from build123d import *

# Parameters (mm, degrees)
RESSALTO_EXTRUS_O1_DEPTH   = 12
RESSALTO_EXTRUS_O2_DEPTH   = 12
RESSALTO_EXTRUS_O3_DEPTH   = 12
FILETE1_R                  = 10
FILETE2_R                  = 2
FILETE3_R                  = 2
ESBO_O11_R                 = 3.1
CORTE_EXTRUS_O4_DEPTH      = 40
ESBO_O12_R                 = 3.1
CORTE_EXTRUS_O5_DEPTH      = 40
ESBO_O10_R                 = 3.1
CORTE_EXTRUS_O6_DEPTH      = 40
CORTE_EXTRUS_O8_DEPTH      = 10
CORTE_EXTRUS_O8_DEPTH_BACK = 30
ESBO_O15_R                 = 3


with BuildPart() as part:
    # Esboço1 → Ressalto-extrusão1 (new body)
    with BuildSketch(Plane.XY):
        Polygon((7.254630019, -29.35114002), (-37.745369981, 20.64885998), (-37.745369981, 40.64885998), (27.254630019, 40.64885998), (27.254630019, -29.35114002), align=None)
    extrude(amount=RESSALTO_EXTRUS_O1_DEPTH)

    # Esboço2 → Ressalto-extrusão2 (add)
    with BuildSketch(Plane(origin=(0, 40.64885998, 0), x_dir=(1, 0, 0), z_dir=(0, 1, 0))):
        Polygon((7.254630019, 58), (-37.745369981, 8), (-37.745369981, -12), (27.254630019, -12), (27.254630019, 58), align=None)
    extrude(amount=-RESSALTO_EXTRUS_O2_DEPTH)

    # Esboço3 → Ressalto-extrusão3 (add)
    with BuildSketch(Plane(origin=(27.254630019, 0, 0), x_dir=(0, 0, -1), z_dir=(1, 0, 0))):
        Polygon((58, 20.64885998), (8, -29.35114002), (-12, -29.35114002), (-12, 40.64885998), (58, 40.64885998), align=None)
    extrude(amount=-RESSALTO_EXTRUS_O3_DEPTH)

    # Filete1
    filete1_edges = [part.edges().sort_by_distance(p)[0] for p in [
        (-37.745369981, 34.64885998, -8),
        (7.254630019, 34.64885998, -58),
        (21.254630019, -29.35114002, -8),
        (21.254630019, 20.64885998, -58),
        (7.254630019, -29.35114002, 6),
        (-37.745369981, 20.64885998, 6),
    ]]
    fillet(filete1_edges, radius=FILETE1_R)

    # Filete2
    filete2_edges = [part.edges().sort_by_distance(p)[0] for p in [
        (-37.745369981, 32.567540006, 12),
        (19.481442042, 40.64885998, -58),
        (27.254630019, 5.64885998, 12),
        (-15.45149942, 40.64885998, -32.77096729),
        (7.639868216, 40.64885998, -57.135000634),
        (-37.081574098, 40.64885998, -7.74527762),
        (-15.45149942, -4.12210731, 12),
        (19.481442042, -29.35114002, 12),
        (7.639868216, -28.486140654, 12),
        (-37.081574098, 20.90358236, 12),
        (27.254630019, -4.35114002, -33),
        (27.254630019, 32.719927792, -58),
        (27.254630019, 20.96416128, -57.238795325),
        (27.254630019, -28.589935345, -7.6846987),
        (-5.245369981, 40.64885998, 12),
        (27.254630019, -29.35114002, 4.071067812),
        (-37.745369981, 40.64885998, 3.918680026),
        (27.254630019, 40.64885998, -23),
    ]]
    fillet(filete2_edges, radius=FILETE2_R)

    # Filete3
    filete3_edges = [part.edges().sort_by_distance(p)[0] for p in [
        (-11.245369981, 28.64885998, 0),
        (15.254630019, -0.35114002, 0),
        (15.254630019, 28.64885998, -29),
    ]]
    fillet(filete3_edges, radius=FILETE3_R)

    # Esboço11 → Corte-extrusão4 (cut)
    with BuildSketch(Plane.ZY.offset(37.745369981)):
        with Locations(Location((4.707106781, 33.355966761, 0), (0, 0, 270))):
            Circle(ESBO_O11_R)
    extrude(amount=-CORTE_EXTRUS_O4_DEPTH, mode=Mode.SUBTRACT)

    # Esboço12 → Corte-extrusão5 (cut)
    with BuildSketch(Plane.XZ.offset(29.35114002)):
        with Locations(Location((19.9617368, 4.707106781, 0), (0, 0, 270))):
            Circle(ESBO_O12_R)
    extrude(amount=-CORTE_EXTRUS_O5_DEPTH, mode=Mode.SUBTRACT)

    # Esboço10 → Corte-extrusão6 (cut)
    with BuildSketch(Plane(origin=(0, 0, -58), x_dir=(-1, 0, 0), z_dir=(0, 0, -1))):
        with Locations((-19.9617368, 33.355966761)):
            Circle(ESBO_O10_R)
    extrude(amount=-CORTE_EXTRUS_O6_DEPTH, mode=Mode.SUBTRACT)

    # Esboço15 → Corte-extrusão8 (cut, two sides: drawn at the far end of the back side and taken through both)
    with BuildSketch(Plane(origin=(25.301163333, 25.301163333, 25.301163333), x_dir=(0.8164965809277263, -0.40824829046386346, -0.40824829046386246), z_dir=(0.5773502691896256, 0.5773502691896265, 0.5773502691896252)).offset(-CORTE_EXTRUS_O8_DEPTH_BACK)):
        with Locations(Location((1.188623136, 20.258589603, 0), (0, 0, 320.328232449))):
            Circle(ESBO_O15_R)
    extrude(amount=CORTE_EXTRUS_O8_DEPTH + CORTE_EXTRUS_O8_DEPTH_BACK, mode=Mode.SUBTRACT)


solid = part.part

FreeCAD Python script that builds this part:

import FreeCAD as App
import Part
import Sketcher


def edges_at(feature, points):
    """Names of the edges that pass closest to the given points."""
    edges = feature.Shape.Edges
    near = lambda p: min(range(len(edges)), key=lambda i: edges[i].distToShape(Part.Vertex(*p))[0])
    return sorted({f"Edge{near(p) + 1}" for p in points})

doc = App.newDocument("Part")
body = doc.addObject("PartDesign::Body", "Body")

sketch1 = doc.addObject("Sketcher::SketchObject", "Sketch")
body.addObject(sketch1)
sketch1.AttachmentSupport = (doc.XY_Plane, [""])
sketch1.MapMode = "FlatFace"
sketch1.addGeometry([
    Part.LineSegment(App.Vector(-38, 21, 0), App.Vector(7, -29, 0)),
    Part.LineSegment(App.Vector(7, -29, 0), App.Vector(27, -29, 0)),
    Part.LineSegment(App.Vector(27, -29, 0), App.Vector(27, 41, 0)),
    Part.LineSegment(App.Vector(27, 41, 0), App.Vector(-38, 41, 0)),
    Part.LineSegment(App.Vector(-38, 41, 0), App.Vector(-38, 21, 0)),
], False)
sketch1.addConstraint([
    Sketcher.Constraint("Coincident", 0, 2, 1, 1),
    Sketcher.Constraint("Coincident", 1, 2, 2, 1),
    Sketcher.Constraint("Coincident", 2, 2, 3, 1),
    Sketcher.Constraint("Coincident", 3, 2, 4, 1),
    Sketcher.Constraint("Coincident", 4, 2, 0, 1),
    Sketcher.Constraint("Horizontal", 1),
    Sketcher.Constraint("Vertical", 2),
    Sketcher.Constraint("Horizontal", 3),
    Sketcher.Constraint("Vertical", 4),
    Sketcher.Constraint("Equal", 1, 4),
    Sketcher.Constraint("DistanceX", 1, 1, 1, 2, 20.0),
    Sketcher.Constraint("DistanceX", 3, 2, 3, 1, 65.0),
    Sketcher.Constraint("DistanceY", 2, 1, 2, 2, 70.0),
    Sketcher.Constraint("DistanceX", -1, 1, 0, 2, 7.25463),
    Sketcher.Constraint("DistanceY", 0, 2, -1, 1, 29.35114),
])
pad1 = doc.addObject("PartDesign::Pad", "Pad")
body.addObject(pad1)
pad1.Profile = sketch1
pad1.Length = 12

sketch2 = doc.addObject("Sketcher::SketchObject", "Sketch001")
body.addObject(sketch2)
sketch2.AttachmentSupport = (doc.XZ_Plane, [""])
sketch2.MapMode = "FlatFace"
sketch2.AttachmentOffset = App.Placement(App.Vector(0, 0, -40.64886), App.Rotation())
sketch2.addGeometry([
    Part.LineSegment(App.Vector(7, -58, 0), App.Vector(-38, -8, 0)),
    Part.LineSegment(App.Vector(-38, -8, 0), App.Vector(-38, 12, 0)),
    Part.LineSegment(App.Vector(-38, 12, 0), App.Vector(27, 12, 0)),
    Part.LineSegment(App.Vector(27, 12, 0), App.Vector(27, -58, 0)),
    Part.LineSegment(App.Vector(27, -58, 0), App.Vector(7, -58, 0)),
], False)
sketch2.addConstraint([
    Sketcher.Constraint("Coincident", 0, 2, 1, 1),
    Sketcher.Constraint("Coincident", 1, 2, 2, 1),
    Sketcher.Constraint("Coincident", 2, 2, 3, 1),
    Sketcher.Constraint("Coincident", 3, 2, 4, 1),
    Sketcher.Constraint("Coincident", 4, 2, 0, 1),
    Sketcher.Constraint("Vertical", 1),
    Sketcher.Constraint("Horizontal", 2),
    Sketcher.Constraint("Vertical", 3),
    Sketcher.Constraint("Horizontal", 4),
    Sketcher.Constraint("Equal", 4, 1),
    Sketcher.Constraint("DistanceX", 2, 1, 2, 2, 65.0),
    Sketcher.Constraint("DistanceX", 4, 2, 4, 1, 20.0),
    Sketcher.Constraint("DistanceY", 3, 2, 3, 1, 70.0),
    Sketcher.Constraint("DistanceY", 0, 2, -1, 1, 8.0),
    Sketcher.Constraint("DistanceX", 0, 2, -1, 1, 37.74537),
])
pad2 = doc.addObject("PartDesign::Pad", "Pad001")
body.addObject(pad2)
pad2.Profile = sketch2
pad2.Length = 12

sketch3 = doc.addObject("Sketcher::SketchObject", "Sketch002")
body.addObject(sketch3)
sketch3.AttachmentSupport = (doc.YZ_Plane, [""])
sketch3.MapMode = "FlatFace"
sketch3.AttachmentOffset = App.Placement(App.Vector(0, 0, 27.25463), App.Rotation())
sketch3.addGeometry([
    Part.LineSegment(App.Vector(-29, -8, 0), App.Vector(21, -58, 0)),
    Part.LineSegment(App.Vector(21, -58, 0), App.Vector(41, -58, 0)),
    Part.LineSegment(App.Vector(41, -58, 0), App.Vector(41, 12, 0)),
    Part.LineSegment(App.Vector(41, 12, 0), App.Vector(-29, 12, 0)),
    Part.LineSegment(App.Vector(-29, 12, 0), App.Vector(-29, -8, 0)),
], False)
sketch3.addConstraint([
    Sketcher.Constraint("Coincident", 0, 2, 1, 1),
    Sketcher.Constraint("Coincident", 1, 2, 2, 1),
    Sketcher.Constraint("Coincident", 2, 2, 3, 1),
    Sketcher.Constraint("Coincident", 3, 2, 4, 1),
    Sketcher.Constraint("Coincident", 4, 2, 0, 1),
    Sketcher.Constraint("Horizontal", 1),
    Sketcher.Constraint("Vertical", 2),
    Sketcher.Constraint("Horizontal", 3),
    Sketcher.Constraint("Vertical", 4),
    Sketcher.Constraint("Equal", 3, 2),
    Sketcher.Constraint("Equal", 1, 4),
    Sketcher.Constraint("DistanceX", 1, 1, 1, 2, 20.0),
    Sketcher.Constraint("DistanceX", 3, 2, 3, 1, 70.0),
    Sketcher.Constraint("DistanceY", 0, 2, -1, 1, 58.0),
    Sketcher.Constraint("DistanceX", -1, 1, 0, 2, 20.64886),
])
pad3 = doc.addObject("PartDesign::Pad", "Pad002")
body.addObject(pad3)
pad3.Profile = sketch3
pad3.Length = 12
pad3.Reversed = True
doc.recompute()

fillet = doc.addObject("PartDesign::Fillet", "Fillet")
body.addObject(fillet)
fillet.Base = (pad3, edges_at(pad3, [
    (-37.745, 34.649, -8),
    (7.255, 34.649, -58),
    (21.255, -29.351, -8),
    (21.255, 20.649, -58),
    (7.255, -29.351, 6),
    (-37.745, 20.649, 6),
]))
fillet.Radius = 10
doc.recompute()

fillet2 = doc.addObject("PartDesign::Fillet", "Fillet001")
body.addObject(fillet2)
fillet2.Base = (fillet, edges_at(fillet, [
    (-37.745, 32.568, 12),
    (19.481, 40.649, -58),
    (27.255, 5.649, 12),
    (-15.451, 40.649, -32.771),
    (7.64, 40.649, -57.135),
    (-37.082, 40.649, -7.745),
    (-15.451, -4.122, 12),
    (19.481, -29.351, 12),
    (7.64, -28.486, 12),
    (-37.082, 20.904, 12),
    (27.255, -4.351, -33),
    (27.255, 32.72, -58),
    (27.255, 20.964, -57.239),
    (27.255, -28.59, -7.685),
    (-5.245, 40.649, 12),
    (27.255, -29.351, 4.071),
    (-37.745, 40.649, 3.919),
    (27.255, 40.649, -23),
]))
fillet2.Radius = 2
doc.recompute()

fillet3 = doc.addObject("PartDesign::Fillet", "Fillet002")
body.addObject(fillet3)
fillet3.Base = (fillet2, edges_at(fillet2, [(-11.245, 28.649, 0), (15.255, -0.351, 0), (15.255, 28.649, -29)]))
fillet3.Radius = 2

sketch4 = doc.addObject("Sketcher::SketchObject", "Sketch003")
body.addObject(sketch4)
sketch4.AttachmentSupport = (doc.YZ_Plane, [""])
sketch4.MapMode = "FlatFace"
sketch4.AttachmentOffset = App.Placement(App.Vector(0, 0, -37.74537), App.Rotation())
sketch4.addGeometry(Part.Circle(App.Vector(33.4, 4.7, 0), App.Vector(0, 0, 1), 3.1), False)
sketch4.addConstraint([
    Sketcher.Constraint("Diameter", 0, 6.2),
    Sketcher.Constraint("DistanceX", -1, 1, 0, 3, 33.355967),
    Sketcher.Constraint("DistanceY", -1, 1, 0, 3, 4.707107),
])
pocket1 = doc.addObject("PartDesign::Pocket", "Pocket")
body.addObject(pocket1)
pocket1.Profile = sketch4
pocket1.Length = 40
pocket1.Reversed = True

sketch5 = doc.addObject("Sketcher::SketchObject", "Sketch004")
body.addObject(sketch5)
sketch5.AttachmentSupport = (doc.XZ_Plane, [""])
sketch5.MapMode = "FlatFace"
sketch5.AttachmentOffset = App.Placement(App.Vector(0, 0, 29.35114), App.Rotation())
sketch5.addGeometry(Part.Circle(App.Vector(20, 4.7, 0), App.Vector(0, 0, 1), 3.1), False)
sketch5.addConstraint([
    Sketcher.Constraint("Diameter", 0, 6.2),
    Sketcher.Constraint("DistanceX", -1, 1, 0, 3, 19.961737),
    Sketcher.Constraint("DistanceY", -1, 1, 0, 3, 4.707107),
])
pocket2 = doc.addObject("PartDesign::Pocket", "Pocket001")
body.addObject(pocket2)
pocket2.Profile = sketch5
pocket2.Length = 40

sketch6 = doc.addObject("Sketcher::SketchObject", "Sketch005")
body.addObject(sketch6)
sketch6.AttachmentSupport = (doc.XY_Plane, [""])
sketch6.MapMode = "FlatFace"
sketch6.AttachmentOffset = App.Placement(App.Vector(0, 0, -58), App.Rotation())
sketch6.addGeometry(Part.Circle(App.Vector(20, 33.4, 0), App.Vector(0, 0, 1), 3.1), False)
sketch6.addConstraint([
    Sketcher.Constraint("Diameter", 0, 6.2),
    Sketcher.Constraint("DistanceX", -1, 1, 0, 3, 19.961737),
    Sketcher.Constraint("DistanceY", -1, 1, 0, 3, 33.355967),
])
pocket3 = doc.addObject("PartDesign::Pocket", "Pocket002")
body.addObject(pocket3)
pocket3.Profile = sketch6
pocket3.Length = 40
pocket3.Reversed = True

sketch7 = doc.addObject("Sketcher::SketchObject", "Sketch006")
body.addObject(sketch7)
sketch7.Placement = App.Placement(App.Vector(25.301163, 25.301163, 25.301163), App.Rotation(App.Vector(0.816496581, -0.40824829, -0.40824829), App.Vector(0, 0.707106781, -0.707106781), App.Vector(0.577350269, 0.577350269, 0.577350269), "ZXY"))
sketch7.addGeometry(Part.Circle(App.Vector(1.2, 20.3, 0), App.Vector(0, 0, 1), 3), False)
sketch7.addConstraint([
    Sketcher.Constraint("Diameter", 0, 6.0),
    Sketcher.Constraint("DistanceY", -1, 1, 0, 3, 20.25859),
    Sketcher.Constraint("DistanceX", -1, 1, 0, 3, 1.188623),
])
pocket4 = doc.addObject("PartDesign::Pocket", "Pocket003")
body.addObject(pocket4)
pocket4.Profile = sketch7
pocket4.Type = "ThroughAll"
pocket4.Midplane = True

doc.recompute()
